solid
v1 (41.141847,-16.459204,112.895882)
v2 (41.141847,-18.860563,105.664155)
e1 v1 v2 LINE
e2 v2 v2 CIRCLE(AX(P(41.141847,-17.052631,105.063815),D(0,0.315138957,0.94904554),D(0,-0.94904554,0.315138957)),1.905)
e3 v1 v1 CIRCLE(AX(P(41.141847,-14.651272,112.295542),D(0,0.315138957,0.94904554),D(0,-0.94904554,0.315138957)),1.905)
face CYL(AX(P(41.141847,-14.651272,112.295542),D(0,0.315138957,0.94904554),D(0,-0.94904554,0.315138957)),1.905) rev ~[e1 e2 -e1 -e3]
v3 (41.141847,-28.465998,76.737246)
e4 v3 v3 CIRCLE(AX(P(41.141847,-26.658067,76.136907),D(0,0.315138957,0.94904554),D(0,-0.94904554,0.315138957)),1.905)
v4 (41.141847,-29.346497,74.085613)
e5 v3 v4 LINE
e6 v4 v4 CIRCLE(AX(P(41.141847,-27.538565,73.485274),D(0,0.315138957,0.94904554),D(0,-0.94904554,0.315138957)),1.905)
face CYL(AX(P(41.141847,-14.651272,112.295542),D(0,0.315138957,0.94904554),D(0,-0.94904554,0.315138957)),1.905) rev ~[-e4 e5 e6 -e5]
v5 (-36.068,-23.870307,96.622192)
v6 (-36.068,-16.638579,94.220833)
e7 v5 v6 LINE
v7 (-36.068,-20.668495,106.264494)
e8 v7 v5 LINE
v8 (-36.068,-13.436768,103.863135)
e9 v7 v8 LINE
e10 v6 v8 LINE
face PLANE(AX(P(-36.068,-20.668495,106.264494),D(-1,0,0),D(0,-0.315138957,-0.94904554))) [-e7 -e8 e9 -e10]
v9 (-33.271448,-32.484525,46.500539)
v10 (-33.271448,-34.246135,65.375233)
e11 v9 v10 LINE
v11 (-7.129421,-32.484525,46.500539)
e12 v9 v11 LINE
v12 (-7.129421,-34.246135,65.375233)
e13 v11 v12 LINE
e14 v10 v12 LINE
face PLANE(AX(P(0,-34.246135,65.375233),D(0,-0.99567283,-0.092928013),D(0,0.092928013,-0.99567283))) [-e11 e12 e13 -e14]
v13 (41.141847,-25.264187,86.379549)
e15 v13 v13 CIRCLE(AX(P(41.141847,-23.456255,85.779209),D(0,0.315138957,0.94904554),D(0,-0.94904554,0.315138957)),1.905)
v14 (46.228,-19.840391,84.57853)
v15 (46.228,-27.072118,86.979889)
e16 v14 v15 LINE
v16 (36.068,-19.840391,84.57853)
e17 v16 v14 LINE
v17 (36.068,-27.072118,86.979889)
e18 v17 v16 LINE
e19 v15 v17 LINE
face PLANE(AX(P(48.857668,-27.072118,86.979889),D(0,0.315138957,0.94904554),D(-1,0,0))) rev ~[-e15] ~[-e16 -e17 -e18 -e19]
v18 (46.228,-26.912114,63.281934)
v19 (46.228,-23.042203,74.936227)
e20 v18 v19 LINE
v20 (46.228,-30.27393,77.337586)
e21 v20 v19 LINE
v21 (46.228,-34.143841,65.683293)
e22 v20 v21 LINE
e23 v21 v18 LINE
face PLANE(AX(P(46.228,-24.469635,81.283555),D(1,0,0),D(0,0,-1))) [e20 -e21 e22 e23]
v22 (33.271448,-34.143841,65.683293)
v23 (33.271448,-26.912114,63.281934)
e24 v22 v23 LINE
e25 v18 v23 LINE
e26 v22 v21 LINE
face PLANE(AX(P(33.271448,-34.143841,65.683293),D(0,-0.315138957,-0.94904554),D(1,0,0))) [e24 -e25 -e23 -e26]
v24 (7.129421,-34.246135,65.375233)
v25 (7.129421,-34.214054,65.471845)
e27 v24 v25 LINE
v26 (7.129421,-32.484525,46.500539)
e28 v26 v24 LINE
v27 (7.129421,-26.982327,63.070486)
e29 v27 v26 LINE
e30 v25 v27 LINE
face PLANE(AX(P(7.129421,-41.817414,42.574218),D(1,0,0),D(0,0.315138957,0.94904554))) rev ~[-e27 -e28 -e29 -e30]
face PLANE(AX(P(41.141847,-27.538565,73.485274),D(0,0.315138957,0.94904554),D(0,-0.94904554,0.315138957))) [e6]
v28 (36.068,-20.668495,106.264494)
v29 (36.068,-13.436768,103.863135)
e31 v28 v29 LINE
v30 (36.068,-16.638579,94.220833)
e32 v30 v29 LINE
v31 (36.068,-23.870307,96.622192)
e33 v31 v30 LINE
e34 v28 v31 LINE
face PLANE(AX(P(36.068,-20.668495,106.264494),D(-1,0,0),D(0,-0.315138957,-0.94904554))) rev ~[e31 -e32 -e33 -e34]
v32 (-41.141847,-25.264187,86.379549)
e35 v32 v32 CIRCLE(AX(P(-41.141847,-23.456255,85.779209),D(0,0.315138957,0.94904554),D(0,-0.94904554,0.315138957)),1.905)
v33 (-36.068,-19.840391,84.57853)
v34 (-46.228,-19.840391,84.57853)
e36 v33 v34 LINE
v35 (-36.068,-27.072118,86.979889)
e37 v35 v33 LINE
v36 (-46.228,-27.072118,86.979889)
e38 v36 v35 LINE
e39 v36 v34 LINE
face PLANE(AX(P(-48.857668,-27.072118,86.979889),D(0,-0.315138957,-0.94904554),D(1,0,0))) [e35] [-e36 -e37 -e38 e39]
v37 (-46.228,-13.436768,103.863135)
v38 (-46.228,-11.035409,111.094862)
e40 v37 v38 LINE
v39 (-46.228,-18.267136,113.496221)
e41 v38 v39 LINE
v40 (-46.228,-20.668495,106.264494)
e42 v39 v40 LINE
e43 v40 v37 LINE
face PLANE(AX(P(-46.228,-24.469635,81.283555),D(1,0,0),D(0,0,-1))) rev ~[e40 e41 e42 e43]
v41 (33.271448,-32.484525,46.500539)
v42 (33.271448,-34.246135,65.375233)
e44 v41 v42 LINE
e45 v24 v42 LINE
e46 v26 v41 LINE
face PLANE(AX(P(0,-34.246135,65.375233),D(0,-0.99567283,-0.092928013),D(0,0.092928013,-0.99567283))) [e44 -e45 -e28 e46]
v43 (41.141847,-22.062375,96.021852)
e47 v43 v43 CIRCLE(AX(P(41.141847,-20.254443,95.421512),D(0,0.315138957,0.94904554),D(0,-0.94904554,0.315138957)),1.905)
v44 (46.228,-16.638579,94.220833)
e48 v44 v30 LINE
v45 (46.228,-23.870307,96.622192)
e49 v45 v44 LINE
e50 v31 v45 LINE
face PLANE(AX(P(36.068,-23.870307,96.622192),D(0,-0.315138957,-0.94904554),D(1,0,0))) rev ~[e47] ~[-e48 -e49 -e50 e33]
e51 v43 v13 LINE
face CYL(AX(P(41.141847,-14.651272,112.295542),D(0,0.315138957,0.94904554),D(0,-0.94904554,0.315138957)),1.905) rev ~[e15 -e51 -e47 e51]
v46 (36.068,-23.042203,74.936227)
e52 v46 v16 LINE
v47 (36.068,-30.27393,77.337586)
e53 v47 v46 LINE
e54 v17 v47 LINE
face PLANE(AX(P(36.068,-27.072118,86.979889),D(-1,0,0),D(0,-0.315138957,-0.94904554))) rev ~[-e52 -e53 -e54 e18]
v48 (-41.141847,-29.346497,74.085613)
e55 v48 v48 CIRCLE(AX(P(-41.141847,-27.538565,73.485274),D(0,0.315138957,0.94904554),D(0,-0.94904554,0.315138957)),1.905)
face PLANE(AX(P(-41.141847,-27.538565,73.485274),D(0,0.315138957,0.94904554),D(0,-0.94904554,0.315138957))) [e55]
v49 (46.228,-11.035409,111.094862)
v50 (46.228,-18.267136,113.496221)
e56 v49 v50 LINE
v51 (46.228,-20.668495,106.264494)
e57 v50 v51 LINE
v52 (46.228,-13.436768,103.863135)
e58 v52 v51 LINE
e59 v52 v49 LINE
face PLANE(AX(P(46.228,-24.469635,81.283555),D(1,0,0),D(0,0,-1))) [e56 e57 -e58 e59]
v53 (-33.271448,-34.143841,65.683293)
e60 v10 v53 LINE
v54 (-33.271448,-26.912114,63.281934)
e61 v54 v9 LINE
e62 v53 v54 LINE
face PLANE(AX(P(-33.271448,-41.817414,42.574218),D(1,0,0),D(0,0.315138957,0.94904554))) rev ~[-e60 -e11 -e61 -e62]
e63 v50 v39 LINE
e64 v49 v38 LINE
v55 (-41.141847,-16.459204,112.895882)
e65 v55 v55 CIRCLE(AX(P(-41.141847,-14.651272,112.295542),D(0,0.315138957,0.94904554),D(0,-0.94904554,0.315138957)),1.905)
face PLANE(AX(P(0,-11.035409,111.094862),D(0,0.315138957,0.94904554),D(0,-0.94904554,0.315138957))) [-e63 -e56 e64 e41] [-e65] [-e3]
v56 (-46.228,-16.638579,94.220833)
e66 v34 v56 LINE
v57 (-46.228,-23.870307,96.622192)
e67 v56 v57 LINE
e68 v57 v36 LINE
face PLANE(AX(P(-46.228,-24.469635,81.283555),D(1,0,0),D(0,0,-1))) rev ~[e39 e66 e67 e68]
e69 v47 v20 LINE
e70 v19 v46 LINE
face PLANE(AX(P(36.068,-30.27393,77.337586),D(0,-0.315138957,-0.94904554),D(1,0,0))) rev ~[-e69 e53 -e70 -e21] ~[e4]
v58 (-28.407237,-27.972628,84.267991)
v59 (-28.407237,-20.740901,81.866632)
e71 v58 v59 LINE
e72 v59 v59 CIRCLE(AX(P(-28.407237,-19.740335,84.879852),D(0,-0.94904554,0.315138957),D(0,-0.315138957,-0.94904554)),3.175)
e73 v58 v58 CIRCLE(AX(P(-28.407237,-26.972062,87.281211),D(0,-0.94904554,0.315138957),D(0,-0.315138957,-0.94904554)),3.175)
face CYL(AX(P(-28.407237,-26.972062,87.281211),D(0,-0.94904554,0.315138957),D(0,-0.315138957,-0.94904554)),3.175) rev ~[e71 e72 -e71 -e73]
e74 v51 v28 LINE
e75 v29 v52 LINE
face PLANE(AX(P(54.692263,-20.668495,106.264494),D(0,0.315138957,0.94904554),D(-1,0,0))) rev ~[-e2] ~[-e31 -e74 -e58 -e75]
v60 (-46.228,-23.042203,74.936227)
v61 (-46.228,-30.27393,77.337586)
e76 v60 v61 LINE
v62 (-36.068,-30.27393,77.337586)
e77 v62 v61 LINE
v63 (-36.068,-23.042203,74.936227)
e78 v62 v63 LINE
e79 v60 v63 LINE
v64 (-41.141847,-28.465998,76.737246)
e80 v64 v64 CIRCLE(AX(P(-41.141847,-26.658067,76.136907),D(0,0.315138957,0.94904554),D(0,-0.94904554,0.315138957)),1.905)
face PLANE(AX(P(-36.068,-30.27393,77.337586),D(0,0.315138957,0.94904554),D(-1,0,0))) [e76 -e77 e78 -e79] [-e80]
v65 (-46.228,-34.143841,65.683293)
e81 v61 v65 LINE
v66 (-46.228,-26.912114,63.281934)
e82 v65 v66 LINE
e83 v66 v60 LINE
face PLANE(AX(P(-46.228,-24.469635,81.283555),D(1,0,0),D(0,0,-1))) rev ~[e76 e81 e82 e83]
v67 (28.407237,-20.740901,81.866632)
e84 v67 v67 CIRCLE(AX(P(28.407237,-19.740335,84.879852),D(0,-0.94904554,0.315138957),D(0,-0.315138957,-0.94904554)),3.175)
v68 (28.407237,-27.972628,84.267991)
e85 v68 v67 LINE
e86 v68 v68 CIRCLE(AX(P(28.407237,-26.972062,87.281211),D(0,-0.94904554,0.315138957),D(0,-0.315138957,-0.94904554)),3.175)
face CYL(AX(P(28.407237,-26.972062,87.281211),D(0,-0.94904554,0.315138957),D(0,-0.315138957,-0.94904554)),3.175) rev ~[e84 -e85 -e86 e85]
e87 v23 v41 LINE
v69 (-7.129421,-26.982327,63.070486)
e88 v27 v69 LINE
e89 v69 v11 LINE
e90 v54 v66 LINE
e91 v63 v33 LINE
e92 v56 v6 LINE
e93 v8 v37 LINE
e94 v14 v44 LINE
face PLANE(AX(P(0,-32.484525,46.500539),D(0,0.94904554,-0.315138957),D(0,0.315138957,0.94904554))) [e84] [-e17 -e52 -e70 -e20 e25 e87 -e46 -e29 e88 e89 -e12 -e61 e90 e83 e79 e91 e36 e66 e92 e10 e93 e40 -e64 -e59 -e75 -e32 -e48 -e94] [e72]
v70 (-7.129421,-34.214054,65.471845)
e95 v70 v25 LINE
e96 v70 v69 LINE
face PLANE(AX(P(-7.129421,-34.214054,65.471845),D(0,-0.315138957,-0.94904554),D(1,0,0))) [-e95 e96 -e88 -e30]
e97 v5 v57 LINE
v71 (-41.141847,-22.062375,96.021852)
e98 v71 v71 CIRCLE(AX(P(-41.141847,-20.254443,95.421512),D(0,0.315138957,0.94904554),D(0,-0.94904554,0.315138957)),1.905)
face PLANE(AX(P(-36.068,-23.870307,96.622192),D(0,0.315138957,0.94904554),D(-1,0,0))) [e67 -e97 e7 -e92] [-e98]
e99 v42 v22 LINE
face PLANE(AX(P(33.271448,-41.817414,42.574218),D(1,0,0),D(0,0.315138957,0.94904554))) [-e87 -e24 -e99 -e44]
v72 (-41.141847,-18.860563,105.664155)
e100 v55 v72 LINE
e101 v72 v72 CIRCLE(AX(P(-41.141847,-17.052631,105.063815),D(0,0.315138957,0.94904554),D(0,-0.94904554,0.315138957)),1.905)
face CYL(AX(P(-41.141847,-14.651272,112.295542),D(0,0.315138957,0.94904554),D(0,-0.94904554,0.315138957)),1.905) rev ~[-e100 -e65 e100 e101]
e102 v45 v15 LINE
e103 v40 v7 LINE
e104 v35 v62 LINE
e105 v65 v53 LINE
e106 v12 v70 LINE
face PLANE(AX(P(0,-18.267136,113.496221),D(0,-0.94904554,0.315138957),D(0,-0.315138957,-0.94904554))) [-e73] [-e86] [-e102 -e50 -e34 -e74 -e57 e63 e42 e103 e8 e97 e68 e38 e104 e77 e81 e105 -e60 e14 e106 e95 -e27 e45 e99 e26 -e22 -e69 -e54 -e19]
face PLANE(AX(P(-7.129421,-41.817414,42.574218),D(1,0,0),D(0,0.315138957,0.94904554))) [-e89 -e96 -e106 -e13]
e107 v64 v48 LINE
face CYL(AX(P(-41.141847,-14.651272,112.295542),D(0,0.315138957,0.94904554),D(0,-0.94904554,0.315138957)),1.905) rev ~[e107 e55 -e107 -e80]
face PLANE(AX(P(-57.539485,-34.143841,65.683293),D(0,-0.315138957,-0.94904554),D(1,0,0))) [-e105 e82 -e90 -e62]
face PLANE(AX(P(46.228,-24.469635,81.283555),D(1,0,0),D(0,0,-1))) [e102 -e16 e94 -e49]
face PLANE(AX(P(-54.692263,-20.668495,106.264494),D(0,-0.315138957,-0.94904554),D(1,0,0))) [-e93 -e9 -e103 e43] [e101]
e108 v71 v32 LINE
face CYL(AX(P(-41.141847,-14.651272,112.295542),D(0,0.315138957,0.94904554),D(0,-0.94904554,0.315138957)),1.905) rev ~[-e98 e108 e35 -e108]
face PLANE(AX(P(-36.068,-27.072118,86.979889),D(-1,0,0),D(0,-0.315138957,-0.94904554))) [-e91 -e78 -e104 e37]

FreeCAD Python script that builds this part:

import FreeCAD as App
import Part
import Sketcher

V = App.Vector
Q = App.Units.Quantity

doc = App.newDocument("Part")
body = doc.addObject("PartDesign::Body", "Body")

# Sketch on YZ plane
sketch1 = body.newObject("Sketcher::SketchObject", "Sketch")
sketch1.AttachmentSupport = (doc.getObject("YZ_Plane"), [""])
sketch1.MapMode = "FlatFace"
sketch1.addGeometry(Part.LineSegment(V(-18, 113, 0), V(-34, 65, 0)), False)
sketch1.addGeometry(Part.LineSegment(V(-34, 65, 0), V(-32, 47, 0)), False)
sketch1.addGeometry(Part.LineSegment(V(-32, 47, 0), V(-11, 111, 0)), False)
sketch1.addGeometry(Part.LineSegment(V(-11, 111, 0), V(-18, 113, 0)), False)
sketch1.addConstraint(Sketcher.Constraint("Coincident", 0, 2, 1, 1))
sketch1.addConstraint(Sketcher.Constraint("Coincident", 1, 2, 2, 1))
sketch1.addConstraint(Sketcher.Constraint("Coincident", 2, 2, 3, 1))
sketch1.addConstraint(Sketcher.Constraint("Coincident", 3, 2, 0, 1))
sketch1.addConstraint(Sketcher.Constraint("Parallel", 0, 2))
sketch1.addConstraint(Sketcher.Constraint("Perpendicular", 2, 3))
sketch1.addConstraint(Sketcher.Constraint("Distance", 3, Q("0.3 in")))
sketch1.addConstraint(Sketcher.Constraint("DistanceX", 0, 2, 3, 2, Q("15.978999 mm")))
sketch1.addConstraint(Sketcher.Constraint("DistanceY", -1, 1, 1, 2, Q("46.500539 mm")))
sketch1.addConstraint(Sketcher.Constraint("DistanceX", 2, 2, -1, 1, Q("11.035409 mm")))
sketch1.addConstraint(Sketcher.Constraint("DistanceY", -1, 1, 3, 2, Q("113.496221 mm")))
sketch1.addConstraint(Sketcher.Constraint("DistanceX", 0, 2, 1, 2, Q("1.761611 mm")))
pad1 = body.newObject("PartDesign::Pad", "Pad")
pad1.Profile = sketch1
pad1.Length = Q("3.64 in")
pad1.Midplane = True

# Sketch on an angled plane
sketch2 = body.newObject("Sketcher::SketchObject", "Sketch001")
sketch2.Placement = App.Placement(V(0, -50.397568, 16.734958), App.Rotation(V(1, 0, 0), V(0, 0.315138957, 0.94904554), V(0, -0.94904554, 0.315138957), "ZXY"))
sketch2.addGeometry(Part.Circle(V(-28.4, 74.3, 0), V(0, 0, 1), 3.2), False)
sketch2.addGeometry(Part.Circle(V(28.4, 74.3, 0), V(0, 0, 1), 3.2), False)
sketch2.addGeometry(Part.LineSegment(V(54.7, 94.3, 0), V(36.1, 94.3, 0)), False)
sketch2.addGeometry(Part.LineSegment(V(36.1, 94.3, 0), V(36.1, 84.2, 0)), False)
sketch2.addGeometry(Part.LineSegment(V(36.1, 84.2, 0), V(48.9, 84.2, 0)), False)
sketch2.addGeometry(Part.LineSegment(V(48.9, 84.2, 0), V(48.9, 74, 0)), False)
sketch2.addGeometry(Part.LineSegment(V(48.9, 74, 0), V(36.1, 74, 0)), False)
sketch2.addGeometry(Part.LineSegment(V(36.1, 74, 0), V(36.1, 63.9, 0)), False)
sketch2.addGeometry(Part.LineSegment(V(36.1, 63.9, 0), V(53.6, 63.9, 0)), False)
sketch2.addGeometry(Part.LineSegment(V(53.6, 63.9, 0), V(54.7, 94.3, 0)), False)
sketch2.addGeometry(Part.LineSegment(V(-7.1, 51.4, 0), V(-7.1, 27.2, 0)), False)
sketch2.addGeometry(Part.LineSegment(V(-7.1, 27.2, 0), V(7.1, 27.2, 0)), False)
sketch2.addGeometry(Part.LineSegment(V(7.1, 27.2, 0), V(7.1, 51.4, 0)), False)
sketch2.addGeometry(Part.LineSegment(V(7.1, 51.4, 0), V(-7.1, 51.4, 0)), False)
sketch2.addGeometry(Part.LineSegment(V(33.3, 51.6, 0), V(33.3, 27.2, 0)), False)
sketch2.addGeometry(Part.LineSegment(V(33.3, 27.2, 0), V(57.5, 27.2, 0)), False)
sketch2.addGeometry(Part.LineSegment(V(57.5, 27.2, 0), V(57.5, 51.6, 0)), False)
sketch2.addGeometry(Part.LineSegment(V(57.5, 51.6, 0), V(33.3, 51.6, 0)), False)
sketch2.addGeometry(Part.LineSegment(V(-57.5, 51.6, 0), V(-57.5, 27.2, 0)), False)
sketch2.addGeometry(Part.LineSegment(V(-57.5, 27.2, 0), V(-33.3, 27.2, 0)), False)
sketch2.addGeometry(Part.LineSegment(V(-33.3, 27.2, 0), V(-33.3, 51.6, 0)), False)
sketch2.addGeometry(Part.LineSegment(V(-33.3, 51.6, 0), V(-57.5, 51.6, 0)), False)
sketch2.addGeometry(Part.LineSegment(V(-54.7, 94.3, 0), V(-53.6, 63.9, 0)), False)
sketch2.addGeometry(Part.LineSegment(V(-53.6, 63.9, 0), V(-36.1, 63.9, 0)), False)
sketch2.addGeometry(Part.LineSegment(V(-36.1, 63.9, 0), V(-36.1, 74, 0)), False)
sketch2.addGeometry(Part.LineSegment(V(-36.1, 74, 0), V(-48.9, 74, 0)), False)
sketch2.addGeometry(Part.LineSegment(V(-48.9, 74, 0), V(-48.9, 84.2, 0)), False)
sketch2.addGeometry(Part.LineSegment(V(-48.9, 84.2, 0), V(-36.1, 84.2, 0)), False)
sketch2.addGeometry(Part.LineSegment(V(-36.1, 84.2, 0), V(-36.1, 94.3, 0)), False)
sketch2.addGeometry(Part.LineSegment(V(-36.1, 94.3, 0), V(-54.7, 94.3, 0)), False)
sketch2.addConstraint(Sketcher.Constraint("Coincident", 2, 2, 3, 1))
sketch2.addConstraint(Sketcher.Constraint("Coincident", 3, 2, 4, 1))
sketch2.addConstraint(Sketcher.Constraint("Coincident", 4, 2, 5, 1))
sketch2.addConstraint(Sketcher.Constraint("Coincident", 5, 2, 6, 1))
sketch2.addConstraint(Sketcher.Constraint("Coincident", 6, 2, 7, 1))
sketch2.addConstraint(Sketcher.Constraint("Coincident", 7, 2, 8, 1))
sketch2.addConstraint(Sketcher.Constraint("Coincident", 8, 2, 9, 1))
sketch2.addConstraint(Sketcher.Constraint("Coincident", 9, 2, 2, 1))
sketch2.addConstraint(Sketcher.Constraint("Coincident", 10, 2, 11, 1))
sketch2.addConstraint(Sketcher.Constraint("Coincident", 11, 2, 12, 1))
sketch2.addConstraint(Sketcher.Constraint("Coincident", 12, 2, 13, 1))
sketch2.addConstraint(Sketcher.Constraint("Coincident", 13, 2, 10, 1))
sketch2.addConstraint(Sketcher.Constraint("Coincident", 14, 2, 15, 1))
sketch2.addConstraint(Sketcher.Constraint("Coincident", 15, 2, 16, 1))
sketch2.addConstraint(Sketcher.Constraint("Coincident", 16, 2, 17, 1))
sketch2.addConstraint(Sketcher.Constraint("Coincident", 17, 2, 14, 1))
sketch2.addConstraint(Sketcher.Constraint("Coincident", 18, 2, 19, 1))
sketch2.addConstraint(Sketcher.Constraint("Coincident", 19, 2, 20, 1))
sketch2.addConstraint(Sketcher.Constraint("Coincident", 20, 2, 21, 1))
sketch2.addConstraint(Sketcher.Constraint("Coincident", 21, 2, 18, 1))
sketch2.addConstraint(Sketcher.Constraint("Coincident", 22, 2, 23, 1))
sketch2.addConstraint(Sketcher.Constraint("Coincident", 23, 2, 24, 1))
sketch2.addConstraint(Sketcher.Constraint("Coincident", 24, 2, 25, 1))
sketch2.addConstraint(Sketcher.Constraint("Coincident", 25, 2, 26, 1))
sketch2.addConstraint(Sketcher.Constraint("Coincident", 26, 2, 27, 1))
sketch2.addConstraint(Sketcher.Constraint("Coincident", 27, 2, 28, 1))
sketch2.addConstraint(Sketcher.Constraint("Coincident", 28, 2, 29, 1))
sketch2.addConstraint(Sketcher.Constraint("Coincident", 29, 2, 22, 1))
sketch2.addConstraint(Sketcher.Constraint("Horizontal", 2))
sketch2.addConstraint(Sketcher.Constraint("Vertical", 3))
sketch2.addConstraint(Sketcher.Constraint("Horizontal", 4))
sketch2.addConstraint(Sketcher.Constraint("Vertical", 5))
sketch2.addConstraint(Sketcher.Constraint("Horizontal", 6))
sketch2.addConstraint(Sketcher.Constraint("Vertical", 7))
sketch2.addConstraint(Sketcher.Constraint("Horizontal", 8))
sketch2.addConstraint(Sketcher.Constraint("Vertical", 10))
sketch2.addConstraint(Sketcher.Constraint("Horizontal", 11))
sketch2.addConstraint(Sketcher.Constraint("Vertical", 12))
sketch2.addConstraint(Sketcher.Constraint("Horizontal", 13))
sketch2.addConstraint(Sketcher.Constraint("Vertical", 14))
sketch2.addConstraint(Sketcher.Constraint("Horizontal", 15))
sketch2.addConstraint(Sketcher.Constraint("Vertical", 16))
sketch2.addConstraint(Sketcher.Constraint("Horizontal", 17))
sketch2.addConstraint(Sketcher.Constraint("Vertical", 18))
sketch2.addConstraint(Sketcher.Constraint("Horizontal", 19))
sketch2.addConstraint(Sketcher.Constraint("Vertical", 20))
sketch2.addConstraint(Sketcher.Constraint("Horizontal", 21))
sketch2.addConstraint(Sketcher.Constraint("Horizontal", 23))
sketch2.addConstraint(Sketcher.Constraint("Vertical", 24))
sketch2.addConstraint(Sketcher.Constraint("Horizontal", 25))
sketch2.addConstraint(Sketcher.Constraint("Vertical", 26))
sketch2.addConstraint(Sketcher.Constraint("Horizontal", 27))
sketch2.addConstraint(Sketcher.Constraint("Vertical", 28))
sketch2.addConstraint(Sketcher.Constraint("Horizontal", 29))
sketch2.addConstraint(Sketcher.Constraint("Equal", 0, 1))
sketch2.addConstraint(Sketcher.Constraint("Symmetric", 0, 3, 1, 3, -2))
sketch2.addConstraint(Sketcher.Constraint("Symmetric", 15, 2, 18, 2, -2))
sketch2.addConstraint(Sketcher.Constraint("Symmetric", 17, 2, 20, 2, -2))
sketch2.addConstraint(Sketcher.Constraint("Symmetric", 8, 2, 22, 2, -2))
sketch2.addConstraint(Sketcher.Constraint("Symmetric", 6, 2, 24, 2, -2))
sketch2.addConstraint(Sketcher.Constraint("Symmetric", 4, 2, 26, 2, -2))
sketch2.addConstraint(Sketcher.Constraint("Symmetric", 2, 2, 28, 2, -2))
sketch2.addConstraint(Sketcher.Constraint("Horizontal", 11, 2, 14, 2))
sketch2.addConstraint(Sketcher.Constraint("Vertical", 3, 2, 6, 2))
sketch2.addConstraint(Sketcher.Constraint("Equal", 2, 29))
sketch2.addConstraint(Sketcher.Constraint("Equal", 3, 5))
sketch2.addConstraint(Sketcher.Constraint("Equal", 5, 7))
sketch2.addConstraint(Sketcher.Constraint("Diameter", 0, Q("0.25 in")))
sketch2.addConstraint(Sketcher.Constraint("DistanceY", 3, 2, 3, 1, Q("0.4 in")))
sketch2.addConstraint(Sketcher.Constraint("DistanceX", -1, 1, 2, 2, Q("1.42 in")))
sketch2.addConstraint(Sketcher.Constraint("DistanceY", 1, 3, 2, 2, Q("0.7875 in")))
sketch2.addConstraint(Sketcher.Constraint("DistanceX", 11, 1, 11, 2, Q("14.258842 mm")))
sketch2.addConstraint(Sketcher.Constraint("DistanceY", 13, 2, 20, 2, Q("0.2228 mm")))
sketch2.addConstraint(Sketcher.Constraint("Distance", 9, Q("30.498689 mm")))
sketch2.addConstraint(Sketcher.Constraint("DistanceX", 2, 2, 2, 1, Q("18.624263 mm")))
sketch2.addConstraint(Sketcher.Constraint("DistanceX", 4, 1, 4, 2, Q("12.789668 mm")))
sketch2.addConstraint(Sketcher.Constraint("DistanceX", 15, 1, 15, 2, Q("24.268037 mm")))
sketch2.addConstraint(Sketcher.Constraint("DistanceY", 10, 2, 10, 1, Q("24.127006 mm")))
sketch2.addConstraint(Sketcher.Constraint("DistanceX", 10, 2, -1, 1, Q("7.129421 mm")))
sketch2.addConstraint(Sketcher.Constraint("DistanceY", -1, 1, 12, 2, Q("51.353581 mm")))
sketch2.addConstraint(Sketcher.Constraint("DistanceX", 1, 3, 4, 2, Q("20.450431 mm")))
sketch2.addConstraint(Sketcher.Constraint("DistanceY", 10, 2, 0, 3, Q("47.107321 mm")))
sketch2.addConstraint(Sketcher.Constraint("DistanceX", 10, 2, 14, 2, Q("40.400868 mm")))
pocket1 = body.newObject("PartDesign::Pocket", "Pocket")
pocket1.Profile = sketch2
pocket1.Length = Q("0.5 in")

# Sketch on an angled plane
sketch3 = body.newObject("Sketcher::SketchObject", "Sketch002")
sketch3.Placement = App.Placement(V(0, 32.130432, 96.761263), App.Rotation(V(1, 0, 0), V(0, 0.94904554, -0.315138957), V(0, 0.315138957, 0.94904554), "ZXY"))
sketch3.addGeometry(Part.Circle(V(-41.1, -49.3, 0), V(0, 0, 1), 1.9), False)
sketch3.addGeometry(Part.Circle(V(41.1, -49.3, 0), V(0, 0, 1), 1.9), False)
sketch3.addConstraint(Sketcher.Constraint("Equal", 0, 1))
sketch3.addConstraint(Sketcher.Constraint("Symmetric", 0, 3, 1, 3, -2))
sketch3.addConstraint(Sketcher.Constraint("Diameter", 0, Q("0.15 in")))
sketch3.addConstraint(Sketcher.Constraint("DistanceX", 0, 3, -1, 1, Q("41.141847 mm")))
sketch3.addConstraint(Sketcher.Constraint("DistanceY", 0, 3, -1, 1, Q("49.293425 mm")))
pocket2 = body.newObject("PartDesign::Pocket", "Pocket001")
pocket2.Profile = sketch3
pocket2.Length = Q("1.61 in")

doc.recompute()
